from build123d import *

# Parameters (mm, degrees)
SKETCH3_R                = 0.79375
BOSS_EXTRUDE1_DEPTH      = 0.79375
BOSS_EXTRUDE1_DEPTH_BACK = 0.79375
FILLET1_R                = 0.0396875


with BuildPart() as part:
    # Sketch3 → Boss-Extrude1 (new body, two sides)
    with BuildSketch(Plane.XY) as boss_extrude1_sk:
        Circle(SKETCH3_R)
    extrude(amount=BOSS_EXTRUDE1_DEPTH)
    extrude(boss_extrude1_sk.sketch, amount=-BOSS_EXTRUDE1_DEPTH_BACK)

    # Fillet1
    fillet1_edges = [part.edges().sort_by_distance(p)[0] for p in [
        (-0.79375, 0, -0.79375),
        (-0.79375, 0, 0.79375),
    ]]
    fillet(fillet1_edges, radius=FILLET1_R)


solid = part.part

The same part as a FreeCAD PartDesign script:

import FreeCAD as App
import Part
import Sketcher

V = App.Vector
Q = App.Units.Quantity


def edges_at(feature, points):
    """Names of the edges that pass closest to the given points."""
    edges = feature.Shape.Edges
    near = lambda p: min(range(len(edges)), key=lambda i: edges[i].distToShape(Part.Vertex(*p))[0])
    return sorted({f"Edge{near(p) + 1}" for p in points})

doc = App.newDocument("Part")
body = doc.addObject("PartDesign::Body", "Body")

# Sketch on XY plane
sketch1 = body.newObject("Sketcher::SketchObject", "Sketch")
sketch1.AttachmentSupport = (doc.getObject("XY_Plane"), [""])
sketch1.MapMode = "FlatFace"
sketch1.addGeometry(Part.Circle(V(0, 0, 0), V(0, 0, 1), 0.79375), False)
sketch1.addConstraint([
    Sketcher.Constraint("Coincident", 0, 3, -1, 1),
    Sketcher.Constraint("Diameter", 0, Q("0.0625 in")),
])
pad1 = body.newObject("PartDesign::Pad", "Pad")
pad1.Profile = sketch1
pad1.Type = "TwoLengths"
pad1.Length = Q("0.03125 in")
pad1.Length2 = Q("0.03125 in")
doc.recompute()

fillet = body.newObject("PartDesign::Fillet", "Fillet")
fillet.Base = (pad1, edges_at(pad1, [(-0.794, 0, -0.794), (-0.794, 0, 0.794)]))
fillet.Radius = 0.039688

doc.recompute()
